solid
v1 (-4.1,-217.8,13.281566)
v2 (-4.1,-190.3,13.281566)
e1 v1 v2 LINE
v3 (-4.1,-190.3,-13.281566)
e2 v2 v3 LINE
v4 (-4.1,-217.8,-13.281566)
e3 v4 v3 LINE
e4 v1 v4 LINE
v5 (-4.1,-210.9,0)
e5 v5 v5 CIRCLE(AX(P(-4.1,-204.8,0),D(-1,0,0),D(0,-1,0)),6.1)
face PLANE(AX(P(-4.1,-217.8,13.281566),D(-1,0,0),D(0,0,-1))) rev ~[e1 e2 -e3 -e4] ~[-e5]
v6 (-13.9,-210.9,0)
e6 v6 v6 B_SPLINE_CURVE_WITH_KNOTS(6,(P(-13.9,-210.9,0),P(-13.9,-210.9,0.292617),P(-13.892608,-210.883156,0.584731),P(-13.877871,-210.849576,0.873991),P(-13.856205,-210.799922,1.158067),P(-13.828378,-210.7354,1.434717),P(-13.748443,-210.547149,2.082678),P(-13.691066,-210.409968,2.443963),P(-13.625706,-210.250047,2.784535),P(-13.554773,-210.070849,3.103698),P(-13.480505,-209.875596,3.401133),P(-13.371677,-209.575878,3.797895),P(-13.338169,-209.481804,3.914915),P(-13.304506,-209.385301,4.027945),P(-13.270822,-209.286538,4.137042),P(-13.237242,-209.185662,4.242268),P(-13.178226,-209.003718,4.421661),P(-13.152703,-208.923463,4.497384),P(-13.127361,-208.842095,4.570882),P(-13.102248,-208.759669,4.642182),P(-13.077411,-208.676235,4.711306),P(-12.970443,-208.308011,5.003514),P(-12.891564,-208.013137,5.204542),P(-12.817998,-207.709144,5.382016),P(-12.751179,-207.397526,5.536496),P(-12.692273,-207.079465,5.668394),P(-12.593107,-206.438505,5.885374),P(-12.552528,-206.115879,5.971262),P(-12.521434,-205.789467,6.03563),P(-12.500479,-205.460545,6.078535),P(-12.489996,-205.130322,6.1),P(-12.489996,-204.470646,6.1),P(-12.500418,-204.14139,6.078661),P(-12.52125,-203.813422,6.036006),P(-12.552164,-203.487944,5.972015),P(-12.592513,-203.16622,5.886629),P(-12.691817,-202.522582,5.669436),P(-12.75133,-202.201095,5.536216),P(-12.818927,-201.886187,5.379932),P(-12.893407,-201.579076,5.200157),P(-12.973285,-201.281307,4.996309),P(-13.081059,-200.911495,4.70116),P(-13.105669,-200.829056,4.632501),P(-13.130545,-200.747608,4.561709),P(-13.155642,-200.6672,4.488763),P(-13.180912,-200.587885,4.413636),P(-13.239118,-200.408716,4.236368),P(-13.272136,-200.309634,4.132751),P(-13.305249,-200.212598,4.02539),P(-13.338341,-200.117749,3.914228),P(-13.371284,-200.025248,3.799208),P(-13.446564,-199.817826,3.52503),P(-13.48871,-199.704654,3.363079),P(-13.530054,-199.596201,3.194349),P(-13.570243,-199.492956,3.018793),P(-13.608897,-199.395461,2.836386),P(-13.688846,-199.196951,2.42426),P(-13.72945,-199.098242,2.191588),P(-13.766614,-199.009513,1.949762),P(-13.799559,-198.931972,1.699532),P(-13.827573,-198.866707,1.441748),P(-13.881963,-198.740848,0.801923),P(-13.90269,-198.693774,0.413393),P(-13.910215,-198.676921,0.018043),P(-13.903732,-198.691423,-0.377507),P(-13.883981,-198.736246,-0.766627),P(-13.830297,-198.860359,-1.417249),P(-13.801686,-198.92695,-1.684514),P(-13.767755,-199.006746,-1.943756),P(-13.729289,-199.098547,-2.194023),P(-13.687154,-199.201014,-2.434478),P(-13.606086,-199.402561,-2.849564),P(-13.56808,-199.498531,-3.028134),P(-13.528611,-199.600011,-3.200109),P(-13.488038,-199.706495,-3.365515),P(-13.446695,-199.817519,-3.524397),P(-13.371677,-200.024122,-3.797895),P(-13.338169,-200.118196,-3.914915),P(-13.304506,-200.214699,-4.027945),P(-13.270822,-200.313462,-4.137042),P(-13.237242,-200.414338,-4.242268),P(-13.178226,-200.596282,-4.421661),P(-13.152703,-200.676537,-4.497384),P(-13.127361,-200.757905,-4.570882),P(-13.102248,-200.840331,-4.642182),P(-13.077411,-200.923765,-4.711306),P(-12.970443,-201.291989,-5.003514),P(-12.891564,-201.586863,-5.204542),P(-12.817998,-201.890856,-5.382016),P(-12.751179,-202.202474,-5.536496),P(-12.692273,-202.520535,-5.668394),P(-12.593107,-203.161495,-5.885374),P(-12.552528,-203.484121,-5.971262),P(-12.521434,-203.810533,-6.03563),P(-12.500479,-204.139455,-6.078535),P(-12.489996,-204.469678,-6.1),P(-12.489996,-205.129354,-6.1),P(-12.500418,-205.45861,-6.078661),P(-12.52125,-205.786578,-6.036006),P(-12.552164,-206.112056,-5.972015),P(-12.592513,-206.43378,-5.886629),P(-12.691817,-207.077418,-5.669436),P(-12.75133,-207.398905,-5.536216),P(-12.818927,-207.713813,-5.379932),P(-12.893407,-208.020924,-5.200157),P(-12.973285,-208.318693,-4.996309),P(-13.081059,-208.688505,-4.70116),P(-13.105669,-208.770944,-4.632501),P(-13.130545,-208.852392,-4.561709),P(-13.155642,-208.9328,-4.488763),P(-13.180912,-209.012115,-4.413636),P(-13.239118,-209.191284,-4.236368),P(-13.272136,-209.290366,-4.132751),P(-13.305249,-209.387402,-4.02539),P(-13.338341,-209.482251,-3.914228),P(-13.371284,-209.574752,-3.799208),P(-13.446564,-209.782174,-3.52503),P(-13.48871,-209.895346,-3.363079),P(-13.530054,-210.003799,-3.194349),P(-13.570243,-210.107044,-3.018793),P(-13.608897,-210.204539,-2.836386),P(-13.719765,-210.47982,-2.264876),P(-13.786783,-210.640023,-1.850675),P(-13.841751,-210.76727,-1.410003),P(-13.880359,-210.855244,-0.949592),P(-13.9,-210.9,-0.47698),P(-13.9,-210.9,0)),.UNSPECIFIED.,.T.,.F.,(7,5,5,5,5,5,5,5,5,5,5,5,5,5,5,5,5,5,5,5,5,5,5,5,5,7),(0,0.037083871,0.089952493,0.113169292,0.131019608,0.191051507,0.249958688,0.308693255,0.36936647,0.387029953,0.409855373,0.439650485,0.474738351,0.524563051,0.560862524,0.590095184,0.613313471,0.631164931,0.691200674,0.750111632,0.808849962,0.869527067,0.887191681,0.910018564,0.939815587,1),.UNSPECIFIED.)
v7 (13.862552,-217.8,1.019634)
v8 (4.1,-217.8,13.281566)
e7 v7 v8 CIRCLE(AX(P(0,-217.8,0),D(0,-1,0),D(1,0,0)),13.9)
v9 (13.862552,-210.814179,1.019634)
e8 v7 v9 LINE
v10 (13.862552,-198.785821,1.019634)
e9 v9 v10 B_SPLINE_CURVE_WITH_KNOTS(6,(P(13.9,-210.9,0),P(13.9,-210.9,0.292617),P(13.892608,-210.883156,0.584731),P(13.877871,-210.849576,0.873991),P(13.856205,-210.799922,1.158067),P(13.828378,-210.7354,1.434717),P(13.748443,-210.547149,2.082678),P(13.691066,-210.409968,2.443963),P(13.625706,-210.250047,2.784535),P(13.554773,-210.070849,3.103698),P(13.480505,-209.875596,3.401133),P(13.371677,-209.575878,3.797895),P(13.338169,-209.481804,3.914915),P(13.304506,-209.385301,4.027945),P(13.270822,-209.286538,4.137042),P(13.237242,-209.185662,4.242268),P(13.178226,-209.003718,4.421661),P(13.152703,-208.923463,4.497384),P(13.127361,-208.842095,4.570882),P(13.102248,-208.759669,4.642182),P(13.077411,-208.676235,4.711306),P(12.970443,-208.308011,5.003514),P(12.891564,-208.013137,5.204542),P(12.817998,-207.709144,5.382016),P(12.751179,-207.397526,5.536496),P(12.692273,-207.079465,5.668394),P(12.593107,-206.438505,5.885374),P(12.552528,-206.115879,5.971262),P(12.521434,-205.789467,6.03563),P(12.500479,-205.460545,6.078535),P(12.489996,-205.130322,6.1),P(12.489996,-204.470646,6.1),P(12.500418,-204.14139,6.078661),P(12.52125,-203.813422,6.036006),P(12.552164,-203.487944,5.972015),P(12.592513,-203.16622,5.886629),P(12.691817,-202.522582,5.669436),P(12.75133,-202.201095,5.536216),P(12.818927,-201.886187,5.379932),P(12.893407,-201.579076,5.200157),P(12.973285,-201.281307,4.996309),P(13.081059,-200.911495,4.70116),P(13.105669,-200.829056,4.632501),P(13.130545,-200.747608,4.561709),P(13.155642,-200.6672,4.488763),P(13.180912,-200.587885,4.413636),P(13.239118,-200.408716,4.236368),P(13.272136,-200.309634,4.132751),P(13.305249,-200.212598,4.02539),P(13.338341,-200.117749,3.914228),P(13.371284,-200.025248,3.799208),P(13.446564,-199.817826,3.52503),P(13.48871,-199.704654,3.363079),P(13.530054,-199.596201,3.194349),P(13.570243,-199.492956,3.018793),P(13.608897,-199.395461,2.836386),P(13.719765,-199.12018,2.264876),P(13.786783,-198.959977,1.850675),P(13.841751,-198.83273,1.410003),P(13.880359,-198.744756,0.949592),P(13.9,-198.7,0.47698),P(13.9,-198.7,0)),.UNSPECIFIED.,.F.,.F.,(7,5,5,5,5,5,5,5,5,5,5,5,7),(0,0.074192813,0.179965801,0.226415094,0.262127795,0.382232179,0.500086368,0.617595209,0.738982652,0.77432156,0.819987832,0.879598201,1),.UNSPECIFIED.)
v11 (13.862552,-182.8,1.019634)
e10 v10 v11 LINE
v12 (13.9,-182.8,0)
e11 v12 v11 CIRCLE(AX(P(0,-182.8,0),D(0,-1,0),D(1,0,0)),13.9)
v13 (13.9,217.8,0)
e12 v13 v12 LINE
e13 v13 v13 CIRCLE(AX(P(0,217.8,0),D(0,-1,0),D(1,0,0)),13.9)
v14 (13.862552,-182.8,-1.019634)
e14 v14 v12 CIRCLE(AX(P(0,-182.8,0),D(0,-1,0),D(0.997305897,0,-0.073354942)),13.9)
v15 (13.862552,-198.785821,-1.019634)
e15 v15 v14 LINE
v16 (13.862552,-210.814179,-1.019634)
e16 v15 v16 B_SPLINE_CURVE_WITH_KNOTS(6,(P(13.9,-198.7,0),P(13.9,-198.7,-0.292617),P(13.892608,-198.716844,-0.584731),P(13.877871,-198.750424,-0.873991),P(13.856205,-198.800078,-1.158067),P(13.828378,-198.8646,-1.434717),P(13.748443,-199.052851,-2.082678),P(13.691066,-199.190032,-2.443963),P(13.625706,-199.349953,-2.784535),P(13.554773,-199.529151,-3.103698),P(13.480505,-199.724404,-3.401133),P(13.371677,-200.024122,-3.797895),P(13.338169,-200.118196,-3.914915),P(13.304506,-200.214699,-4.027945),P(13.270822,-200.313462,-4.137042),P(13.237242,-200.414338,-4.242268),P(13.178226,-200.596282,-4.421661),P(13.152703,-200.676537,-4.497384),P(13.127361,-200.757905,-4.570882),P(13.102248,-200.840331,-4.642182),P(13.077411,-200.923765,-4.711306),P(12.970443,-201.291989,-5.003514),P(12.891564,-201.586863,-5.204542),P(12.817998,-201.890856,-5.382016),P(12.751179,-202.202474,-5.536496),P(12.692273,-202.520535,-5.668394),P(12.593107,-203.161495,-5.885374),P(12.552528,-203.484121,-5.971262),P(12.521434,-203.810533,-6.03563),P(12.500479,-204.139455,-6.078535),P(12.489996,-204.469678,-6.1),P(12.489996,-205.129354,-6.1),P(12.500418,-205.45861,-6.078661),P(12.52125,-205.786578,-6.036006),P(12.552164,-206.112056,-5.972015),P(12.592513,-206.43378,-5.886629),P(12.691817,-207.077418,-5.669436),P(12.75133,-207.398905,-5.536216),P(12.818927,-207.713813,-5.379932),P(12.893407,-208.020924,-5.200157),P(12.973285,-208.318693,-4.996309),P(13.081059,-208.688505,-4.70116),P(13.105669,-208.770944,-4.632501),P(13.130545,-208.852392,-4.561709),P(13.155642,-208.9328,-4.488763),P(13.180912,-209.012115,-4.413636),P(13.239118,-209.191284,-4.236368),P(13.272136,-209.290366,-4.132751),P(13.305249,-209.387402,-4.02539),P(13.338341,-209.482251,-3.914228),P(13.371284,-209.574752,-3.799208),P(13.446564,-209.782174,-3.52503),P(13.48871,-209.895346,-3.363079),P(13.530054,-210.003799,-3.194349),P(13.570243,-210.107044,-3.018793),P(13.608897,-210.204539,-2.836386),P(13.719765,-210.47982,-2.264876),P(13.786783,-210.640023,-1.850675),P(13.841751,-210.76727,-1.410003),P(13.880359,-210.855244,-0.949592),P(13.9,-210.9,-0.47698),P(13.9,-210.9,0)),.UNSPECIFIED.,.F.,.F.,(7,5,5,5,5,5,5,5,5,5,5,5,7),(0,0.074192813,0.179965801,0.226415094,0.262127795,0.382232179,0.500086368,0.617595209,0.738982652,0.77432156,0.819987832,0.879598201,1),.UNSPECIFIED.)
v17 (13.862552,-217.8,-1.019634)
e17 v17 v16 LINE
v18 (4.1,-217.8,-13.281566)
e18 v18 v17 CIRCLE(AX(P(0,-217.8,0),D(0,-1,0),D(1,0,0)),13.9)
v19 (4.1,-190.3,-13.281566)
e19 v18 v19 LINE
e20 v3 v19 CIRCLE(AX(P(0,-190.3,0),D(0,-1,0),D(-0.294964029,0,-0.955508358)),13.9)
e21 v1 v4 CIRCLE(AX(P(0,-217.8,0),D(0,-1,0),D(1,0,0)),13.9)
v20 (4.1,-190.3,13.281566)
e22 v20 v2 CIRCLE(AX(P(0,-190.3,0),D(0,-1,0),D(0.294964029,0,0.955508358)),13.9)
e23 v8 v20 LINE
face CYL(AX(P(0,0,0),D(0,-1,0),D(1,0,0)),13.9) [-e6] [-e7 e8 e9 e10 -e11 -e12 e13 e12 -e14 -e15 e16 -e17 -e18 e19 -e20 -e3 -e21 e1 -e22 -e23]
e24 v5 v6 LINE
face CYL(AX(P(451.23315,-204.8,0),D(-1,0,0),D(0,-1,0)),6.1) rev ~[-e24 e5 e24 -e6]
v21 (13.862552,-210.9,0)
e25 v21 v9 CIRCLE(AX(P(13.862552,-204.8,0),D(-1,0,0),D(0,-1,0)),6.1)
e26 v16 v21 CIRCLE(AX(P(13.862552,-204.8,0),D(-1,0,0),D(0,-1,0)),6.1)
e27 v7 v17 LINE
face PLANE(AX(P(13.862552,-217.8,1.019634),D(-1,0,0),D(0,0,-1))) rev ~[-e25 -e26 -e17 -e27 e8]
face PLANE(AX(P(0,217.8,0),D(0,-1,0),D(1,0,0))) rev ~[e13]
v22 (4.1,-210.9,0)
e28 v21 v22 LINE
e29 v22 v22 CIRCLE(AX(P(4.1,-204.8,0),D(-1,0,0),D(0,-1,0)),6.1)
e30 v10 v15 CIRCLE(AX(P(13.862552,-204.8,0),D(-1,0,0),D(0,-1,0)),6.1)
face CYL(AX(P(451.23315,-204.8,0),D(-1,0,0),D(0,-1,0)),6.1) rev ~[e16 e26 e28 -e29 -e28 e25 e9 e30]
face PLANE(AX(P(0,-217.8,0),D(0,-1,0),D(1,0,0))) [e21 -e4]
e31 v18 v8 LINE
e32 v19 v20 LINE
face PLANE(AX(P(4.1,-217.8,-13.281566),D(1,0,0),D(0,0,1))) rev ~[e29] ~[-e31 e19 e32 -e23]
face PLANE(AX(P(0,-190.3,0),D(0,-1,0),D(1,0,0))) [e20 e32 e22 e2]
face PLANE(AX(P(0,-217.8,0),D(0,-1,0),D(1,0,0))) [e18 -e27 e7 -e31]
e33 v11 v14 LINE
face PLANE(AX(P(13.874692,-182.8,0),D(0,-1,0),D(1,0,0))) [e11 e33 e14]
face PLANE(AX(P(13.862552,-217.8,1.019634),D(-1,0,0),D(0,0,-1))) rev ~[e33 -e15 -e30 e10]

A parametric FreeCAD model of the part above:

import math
import FreeCAD as App
import Part
import Sketcher

V = App.Vector
Q = App.Units.Quantity

doc = App.newDocument("Part")
body = doc.addObject("PartDesign::Body", "Body")

sketch1 = body.newObject("Sketcher::SketchObject", "Sketch")
sketch1.AttachmentSupport = (doc.getObject("XZ_Plane"), [""])
sketch1.MapMode = "FlatFace"
sketch1.addGeometry(Part.Circle(V(0, 0, 0), V(0, 0, 1), 13.9), False)
sketch1.addConstraint([
    Sketcher.Constraint("Coincident", 0, 3, -1, 1),
    Sketcher.Constraint("Diameter", 0, Q("27.8 mm")),
])
pad1 = body.newObject("PartDesign::Pad", "Pad")
pad1.Profile = sketch1
pad1.Length = 435.6
pad1.Midplane = True

sketch2 = body.newObject("Sketcher::SketchObject", "Sketch001")
sketch2.AttachmentSupport = (doc.getObject("XZ_Plane"), [""])
sketch2.MapMode = "FlatFace"
sketch2.AttachmentOffset = App.Placement(V(0, 0, 217.8), App.Rotation())
sketch2.addGeometry([
    Part.ArcOfCircle(Part.Circle(V(0, 0, 0), V(0, 0, 1), 13.9), math.radians(0), math.radians(4.206707)),
    Part.LineSegment(V(13.862552, 1.019634, 0), V(13.862552, -1.019634, 0)),
    Part.ArcOfCircle(Part.Circle(V(0, 0, 0), V(0, 0, 1), 13.9), math.radians(-4.206707), math.radians(0)),
], False)
sketch2.addConstraint([
    Sketcher.Constraint("Coincident", 0, 2, 1, 1),
    Sketcher.Constraint("Coincident", 1, 2, 2, 1),
    Sketcher.Constraint("Tangent", 2, 2, 0, 1),
    Sketcher.Constraint("Vertical", 1),
    Sketcher.Constraint("Coincident", 0, 3, -1, 1),
    Sketcher.Constraint("Equal", 0, 2),
    Sketcher.Constraint("PointOnObject", 2, 2, -1),
    Sketcher.Constraint("Radius", 0, Q("13.9 mm")),
    Sketcher.Constraint("DistanceY", 1, 2, 1, 1, Q("2.039267 mm")),
])
pocket1 = body.newObject("PartDesign::Pocket", "Pocket")
pocket1.Profile = sketch2
pocket1.Length = 35

sketch3 = body.newObject("Sketcher::SketchObject", "Sketch002")
sketch3.AttachmentSupport = (doc.getObject("YZ_Plane"), [""])
sketch3.MapMode = "FlatFace"
sketch3.AttachmentOffset = App.Placement(V(0, 0, 13.862552), App.Rotation())
sketch3.addGeometry(Part.Circle(V(-204.8, 0, 0), V(0, 0, 1), 6.1), False)
sketch3.addConstraint([
    Sketcher.Constraint("PointOnObject", 0, 3, -1),
    Sketcher.Constraint("Diameter", 0, Q("12.2 mm")),
    Sketcher.Constraint("DistanceX", 0, 3, -1, 1, Q("204.8 mm")),
])
doc.recompute()
hole = body.newObject("PartDesign::Hole", "Hole")
hole.Profile = sketch3
hole.ThreadType = "None"
hole.Diameter = 12.2
hole.DepthType = "ThroughAll"

sketch4 = body.newObject("Sketcher::SketchObject", "Sketch003")
sketch4.AttachmentSupport = (doc.getObject("XZ_Plane"), [""])
sketch4.MapMode = "FlatFace"
sketch4.AttachmentOffset = App.Placement(V(0, 0, 217.8), App.Rotation())
sketch4.addGeometry([
    Part.ArcOfCircle(Part.Circle(V(0, 0, 0), V(0, 0, 1), 13.9), math.radians(72.84462), math.radians(107.15538)),
    Part.LineSegment(V(-4.1, 13.281566, 0), V(-4.1, -13.281566, 0)),
    Part.ArcOfCircle(Part.Circle(V(0, 0, 0), V(0, 0, 1), 13.9), math.radians(-107.15538), math.radians(-72.84462)),
    Part.LineSegment(V(4.1, -13.281566, 0), V(4.1, 13.281566, 0)),
], False)
sketch4.addConstraint([
    Sketcher.Constraint("Coincident", 0, 2, 1, 1),
    Sketcher.Constraint("Coincident", 1, 2, 2, 1),
    Sketcher.Constraint("Coincident", 2, 2, 3, 1),
    Sketcher.Constraint("Coincident", 3, 2, 0, 1),
    Sketcher.Constraint("Vertical", 1),
    Sketcher.Constraint("Vertical", 3),
    Sketcher.Constraint("Coincident", 0, 3, -1, 1),
    Sketcher.Constraint("Coincident", 2, 3, -1, 1),
    Sketcher.Constraint("Equal", 0, 2),
    Sketcher.Constraint("Horizontal", 1, 2, 2, 2),
    Sketcher.Constraint("Radius", 0, Q("13.9 mm")),
    Sketcher.Constraint("DistanceX", 0, 2, -1, 1, Q("4.1 mm")),
])
pocket2 = body.newObject("PartDesign::Pocket", "Pocket001")
pocket2.Profile = sketch4
pocket2.Length = 27.5

doc.recompute()
